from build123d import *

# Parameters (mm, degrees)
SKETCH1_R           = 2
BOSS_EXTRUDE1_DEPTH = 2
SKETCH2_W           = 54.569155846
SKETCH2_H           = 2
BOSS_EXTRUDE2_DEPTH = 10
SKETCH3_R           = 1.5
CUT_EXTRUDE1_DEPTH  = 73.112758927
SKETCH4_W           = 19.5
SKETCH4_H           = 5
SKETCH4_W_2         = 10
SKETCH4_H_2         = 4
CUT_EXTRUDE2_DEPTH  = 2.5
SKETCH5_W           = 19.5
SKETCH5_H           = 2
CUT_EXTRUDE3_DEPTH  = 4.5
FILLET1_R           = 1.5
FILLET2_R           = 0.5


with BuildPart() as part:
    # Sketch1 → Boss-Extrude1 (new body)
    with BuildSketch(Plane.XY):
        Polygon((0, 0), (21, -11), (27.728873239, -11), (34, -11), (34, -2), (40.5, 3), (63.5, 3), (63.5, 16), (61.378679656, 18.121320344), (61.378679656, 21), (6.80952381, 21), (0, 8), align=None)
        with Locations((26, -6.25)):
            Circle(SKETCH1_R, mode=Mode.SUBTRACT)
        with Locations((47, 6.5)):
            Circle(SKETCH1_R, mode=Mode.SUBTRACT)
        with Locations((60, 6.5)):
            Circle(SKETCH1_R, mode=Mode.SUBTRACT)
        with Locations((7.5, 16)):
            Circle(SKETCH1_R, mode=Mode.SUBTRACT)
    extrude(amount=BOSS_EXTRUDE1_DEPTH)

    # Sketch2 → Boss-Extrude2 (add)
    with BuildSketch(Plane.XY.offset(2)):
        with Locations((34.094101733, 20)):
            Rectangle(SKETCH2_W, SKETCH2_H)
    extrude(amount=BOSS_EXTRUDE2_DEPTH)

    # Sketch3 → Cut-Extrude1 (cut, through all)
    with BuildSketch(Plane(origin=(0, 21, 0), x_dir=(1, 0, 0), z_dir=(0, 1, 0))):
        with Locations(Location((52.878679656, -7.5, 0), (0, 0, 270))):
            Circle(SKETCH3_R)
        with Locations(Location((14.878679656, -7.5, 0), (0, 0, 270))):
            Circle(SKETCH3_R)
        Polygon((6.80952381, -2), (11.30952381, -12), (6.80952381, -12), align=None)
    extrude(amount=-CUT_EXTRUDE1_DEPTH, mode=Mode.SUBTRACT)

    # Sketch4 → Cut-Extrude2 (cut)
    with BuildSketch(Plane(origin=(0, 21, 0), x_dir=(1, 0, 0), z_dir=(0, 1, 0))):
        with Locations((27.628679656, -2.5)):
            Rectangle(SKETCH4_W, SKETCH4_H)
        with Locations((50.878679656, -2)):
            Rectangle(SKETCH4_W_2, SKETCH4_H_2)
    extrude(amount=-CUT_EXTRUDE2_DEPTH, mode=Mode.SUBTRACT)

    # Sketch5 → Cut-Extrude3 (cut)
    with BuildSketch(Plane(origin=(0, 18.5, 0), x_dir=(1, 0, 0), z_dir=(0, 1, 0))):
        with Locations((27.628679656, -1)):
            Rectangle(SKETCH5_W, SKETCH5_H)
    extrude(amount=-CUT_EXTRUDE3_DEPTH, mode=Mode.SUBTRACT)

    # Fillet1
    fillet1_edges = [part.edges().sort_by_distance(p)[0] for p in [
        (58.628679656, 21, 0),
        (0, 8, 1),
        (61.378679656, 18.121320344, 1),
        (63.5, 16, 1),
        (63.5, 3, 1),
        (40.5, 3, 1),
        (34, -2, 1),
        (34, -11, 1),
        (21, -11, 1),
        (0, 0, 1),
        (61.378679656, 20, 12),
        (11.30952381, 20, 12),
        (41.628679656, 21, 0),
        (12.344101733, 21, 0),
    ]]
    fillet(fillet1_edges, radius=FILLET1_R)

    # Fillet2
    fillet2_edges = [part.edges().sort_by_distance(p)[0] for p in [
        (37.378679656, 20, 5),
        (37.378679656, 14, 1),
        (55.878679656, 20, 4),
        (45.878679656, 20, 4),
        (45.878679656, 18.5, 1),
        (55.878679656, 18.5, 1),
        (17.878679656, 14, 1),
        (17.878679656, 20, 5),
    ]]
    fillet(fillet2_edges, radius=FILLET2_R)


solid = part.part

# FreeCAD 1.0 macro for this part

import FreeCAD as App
import Part
import Sketcher
Q = App.Units.Quantity


def edges_at(feature, points):
    """Names of the edges that pass closest to the given points."""
    edges = feature.Shape.Edges
    near = lambda p: min(range(len(edges)), key=lambda i: edges[i].distToShape(Part.Vertex(*p))[0])
    return sorted({f"Edge{near(p) + 1}" for p in points})

doc = App.newDocument("Part")
body = doc.addObject("PartDesign::Body", "Body")

# Sketch on XY plane
sketch1 = body.newObject("Sketcher::SketchObject", "Sketch")
sketch1.AttachmentSupport = (doc.getObject("XY_Plane"), [""])
sketch1.MapMode = "FlatFace"
sketch1.addGeometry([
    Part.LineSegment(App.Vector(0, 0, 0), App.Vector(21, -11, 0)),  # 0
    Part.LineSegment(App.Vector(21, -11, 0), App.Vector(34, -11, 0)),  # 1
    Part.LineSegment(App.Vector(34, -11, 0), App.Vector(34, -2, 0)),  # 2
    Part.LineSegment(App.Vector(34, -2, 0), App.Vector(40.5, 3, 0)),  # 3
    Part.LineSegment(App.Vector(40.5, 3, 0), App.Vector(63.5, 3, 0)),  # 4
    Part.LineSegment(App.Vector(63.5, 3, 0), App.Vector(63.5, 16, 0)),  # 5
    Part.LineSegment(App.Vector(63.5, 16, 0), App.Vector(61.37868, 18.12132, 0)),  # 6
    Part.LineSegment(App.Vector(61.37868, 18.12132, 0), App.Vector(61.37868, 21, 0)),  # 7
    Part.LineSegment(App.Vector(61.37868, 21, 0), App.Vector(6.809524, 21, 0)),  # 8
    Part.LineSegment(App.Vector(6.809524, 21, 0), App.Vector(0, 8, 0)),  # 9
    Part.LineSegment(App.Vector(0, 8, 0), App.Vector(0, 0, 0)),  # 10
    Part.Circle(App.Vector(26, -6.25, 0), App.Vector(0, 0, 1), 2),  # 11
    Part.Circle(App.Vector(7.5, 16, 0), App.Vector(0, 0, 1), 2),  # 12
    Part.Circle(App.Vector(47, 6.5, 0), App.Vector(0, 0, 1), 2),  # 13
    Part.Circle(App.Vector(60, 6.5, 0), App.Vector(0, 0, 1), 2),  # 14
], False)
sketch1.addConstraint([
    Sketcher.Constraint("Coincident", 0, 2, 1, 1),
    Sketcher.Constraint("Coincident", 1, 2, 2, 1),
    Sketcher.Constraint("Coincident", 2, 2, 3, 1),
    Sketcher.Constraint("Coincident", 3, 2, 4, 1),
    Sketcher.Constraint("Coincident", 4, 2, 5, 1),
    Sketcher.Constraint("Coincident", 5, 2, 6, 1),
    Sketcher.Constraint("Coincident", 6, 2, 7, 1),
    Sketcher.Constraint("Coincident", 7, 2, 8, 1),
    Sketcher.Constraint("Coincident", 8, 2, 9, 1),
    Sketcher.Constraint("Coincident", 9, 2, 10, 1),
    Sketcher.Constraint("Coincident", 10, 2, 0, 1),
    Sketcher.Constraint("Horizontal", 1),
    Sketcher.Constraint("Vertical", 2),
    Sketcher.Constraint("Horizontal", 4),
    Sketcher.Constraint("Vertical", 5),
    Sketcher.Constraint("Vertical", 7),
    Sketcher.Constraint("Horizontal", 8),
    Sketcher.Constraint("Vertical", 10),
    Sketcher.Constraint("Coincident", 10, 2, -1, 1),
    Sketcher.Constraint("Equal", 11, 12),
    Sketcher.Constraint("Equal", 12, 13),
    Sketcher.Constraint("Equal", 13, 14),
    Sketcher.Constraint("Perpendicular", 0, 9),
    Sketcher.Constraint("Horizontal", 13, 3, 14, 3),
    Sketcher.Constraint("Horizontal", 12, 3, 5, 2),
    Sketcher.Constraint("Equal", 1, 5),
    Sketcher.Constraint("Diameter", 11, Q("4 mm")),
    Sketcher.Constraint("DistanceX", 1, 1, 1, 2, Q("13 mm")),
    Sketcher.Constraint("DistanceX", 4, 1, 4, 2, Q("23 mm")),
    Sketcher.Constraint("DistanceY", 2, 1, 2, 2, Q("9 mm")),
    Sketcher.Constraint("DistanceY", 10, 2, 10, 1, Q("8 mm")),
    Sketcher.Constraint("Angle", 6, Q("135 deg")),
    Sketcher.Constraint("Distance", 6, Q("3 mm")),
    Sketcher.Constraint("DistanceX", -1, 1, 11, 3, Q("26 mm")),
    Sketcher.Constraint("DistanceY", -1, 1, 12, 3, Q("16 mm")),
    Sketcher.Constraint("DistanceX", -1, 1, 13, 3, Q("47 mm")),
    Sketcher.Constraint("DistanceX", -1, 1, 14, 3, Q("60 mm")),
    Sketcher.Constraint("DistanceX", -1, 1, 0, 2, Q("21 mm")),
    Sketcher.Constraint("DistanceY", 0, 2, -1, 1, Q("11 mm")),
    Sketcher.Constraint("DistanceY", -1, 1, 7, 2, Q("21 mm")),
    Sketcher.Constraint("DistanceX", -1, 1, 12, 3, Q("7.5 mm")),
    Sketcher.Constraint("DistanceY", -1, 1, 13, 3, Q("6.5 mm")),
    Sketcher.Constraint("DistanceX", -1, 1, 3, 2, Q("40.5 mm")),
    Sketcher.Constraint("DistanceY", 11, 3, -1, 1, Q("6.25 mm")),
])
pad1 = body.newObject("PartDesign::Pad", "Pad")
pad1.Profile = sketch1
pad1.Length = 2

# Sketch on XY plane
sketch2 = body.newObject("Sketcher::SketchObject", "Sketch001")
sketch2.AttachmentSupport = (doc.getObject("XY_Plane"), [""])
sketch2.MapMode = "FlatFace"
sketch2.AttachmentOffset = App.Placement(App.Vector(0, 0, 2), App.Rotation())
sketch2.addGeometry([
    Part.LineSegment(App.Vector(6.809524, 21, 0), App.Vector(6.809524, 19, 0)),
    Part.LineSegment(App.Vector(6.809524, 19, 0), App.Vector(61.37868, 19, 0)),
    Part.LineSegment(App.Vector(61.37868, 19, 0), App.Vector(61.37868, 21, 0)),
    Part.LineSegment(App.Vector(61.37868, 21, 0), App.Vector(6.809524, 21, 0)),
], False)
sketch2.addConstraint([
    Sketcher.Constraint("Coincident", 0, 2, 1, 1),
    Sketcher.Constraint("Coincident", 1, 2, 2, 1),
    Sketcher.Constraint("Coincident", 2, 2, 3, 1),
    Sketcher.Constraint("Coincident", 3, 2, 0, 1),
    Sketcher.Constraint("Vertical", 0),
    Sketcher.Constraint("Horizontal", 1),
    Sketcher.Constraint("Vertical", 2),
    Sketcher.Constraint("Horizontal", 3),
    Sketcher.Constraint("DistanceY", 0, 2, 0, 1, Q("2 mm")),
    Sketcher.Constraint("DistanceY", -1, 1, 0, 2, Q("19 mm")),
    Sketcher.Constraint("DistanceX", 1, 1, 1, 2, Q("54.569156 mm")),
    Sketcher.Constraint("DistanceX", -1, 1, 1, 2, Q("61.37868 mm")),
])
pad2 = body.newObject("PartDesign::Pad", "Pad001")
pad2.Profile = sketch2
pad2.Length = 10

# Sketch on XZ plane
sketch3 = body.newObject("Sketcher::SketchObject", "Sketch002")
sketch3.AttachmentSupport = (doc.getObject("XZ_Plane"), [""])
sketch3.MapMode = "FlatFace"
sketch3.AttachmentOffset = App.Placement(App.Vector(0, 0, -21), App.Rotation())
sketch3.addGeometry([
    Part.Circle(App.Vector(52.87868, 7.5, 0), App.Vector(0, 0, 1), 1.5),  # 0
    Part.Circle(App.Vector(14.87868, 7.5, 0), App.Vector(0, 0, 1), 1.5),  # 1
    Part.LineSegment(App.Vector(11.309524, 12, 0), App.Vector(6.809524, 2, 0)),  # 2
    Part.LineSegment(App.Vector(6.809524, 2, 0), App.Vector(6.809524, 12, 0)),  # 3
    Part.LineSegment(App.Vector(6.809524, 12, 0), App.Vector(11.309524, 12, 0)),  # 4
], False)
sketch3.addConstraint([
    Sketcher.Constraint("Coincident", 2, 2, 3, 1),
    Sketcher.Constraint("Coincident", 3, 2, 4, 1),
    Sketcher.Constraint("Coincident", 4, 2, 2, 1),
    Sketcher.Constraint("Vertical", 3),
    Sketcher.Constraint("Horizontal", 4),
    Sketcher.Constraint("Equal", 0, 1),
    Sketcher.Constraint("Horizontal", 0, 3, 1, 3),
    Sketcher.Constraint("Diameter", 0, Q("3 mm")),
    Sketcher.Constraint("DistanceY", 3, 1, 3, 2, Q("10 mm")),
    Sketcher.Constraint("DistanceX", 4, 1, 4, 2, Q("4.5 mm")),
    Sketcher.Constraint("DistanceY", -1, 1, 2, 2, Q("2 mm")),
    Sketcher.Constraint("DistanceX", 1, 3, 0, 3, Q("38 mm")),
    Sketcher.Constraint("DistanceY", -1, 1, 0, 3, Q("7.5 mm")),
    Sketcher.Constraint("DistanceX", -1, 1, 0, 3, Q("52.87868 mm")),
    Sketcher.Constraint("DistanceX", -1, 1, 2, 2, Q("6.809524 mm")),
])
pocket1 = body.newObject("PartDesign::Pocket", "Pocket")
pocket1.Profile = sketch3
pocket1.Type = "ThroughAll"
pocket1.Reversed = True

# Sketch on XZ plane
sketch4 = body.newObject("Sketcher::SketchObject", "Sketch003")
sketch4.AttachmentSupport = (doc.getObject("XZ_Plane"), [""])
sketch4.MapMode = "FlatFace"
sketch4.AttachmentOffset = App.Placement(App.Vector(0, 0, -21), App.Rotation())
sketch4.addGeometry([
    Part.LineSegment(App.Vector(17.87868, 0, 0), App.Vector(17.87868, 5, 0)),  # 0
    Part.LineSegment(App.Vector(17.87868, 5, 0), App.Vector(37.37868, 5, 0)),  # 1
    Part.LineSegment(App.Vector(37.37868, 5, 0), App.Vector(37.37868, 0, 0)),  # 2
    Part.LineSegment(App.Vector(37.37868, 0, 0), App.Vector(17.87868, 0, 0)),  # 3
    Part.LineSegment(App.Vector(45.87868, 0, 0), App.Vector(45.87868, 4, 0)),  # 4
    Part.LineSegment(App.Vector(45.87868, 4, 0), App.Vector(55.87868, 4, 0)),  # 5
    Part.LineSegment(App.Vector(55.87868, 4, 0), App.Vector(55.87868, 0, 0)),  # 6
    Part.LineSegment(App.Vector(55.87868, 0, 0), App.Vector(45.87868, 0, 0)),  # 7
], False)
sketch4.addConstraint([
    Sketcher.Constraint("Coincident", 0, 2, 1, 1),
    Sketcher.Constraint("Coincident", 1, 2, 2, 1),
    Sketcher.Constraint("Coincident", 2, 2, 3, 1),
    Sketcher.Constraint("Coincident", 3, 2, 0, 1),
    Sketcher.Constraint("Coincident", 4, 2, 5, 1),
    Sketcher.Constraint("Coincident", 5, 2, 6, 1),
    Sketcher.Constraint("Coincident", 6, 2, 7, 1),
    Sketcher.Constraint("Coincident", 7, 2, 4, 1),
    Sketcher.Constraint("Vertical", 0),
    Sketcher.Constraint("Horizontal", 1),
    Sketcher.Constraint("Vertical", 2),
    Sketcher.Constraint("Horizontal", 3),
    Sketcher.Constraint("Vertical", 4),
    Sketcher.Constraint("Horizontal", 5),
    Sketcher.Constraint("Vertical", 6),
    Sketcher.Constraint("Horizontal", 7),
    Sketcher.Constraint("PointOnObject", 2, 2, -1),
    Sketcher.Constraint("PointOnObject", 6, 2, -1),
    Sketcher.Constraint("DistanceX", 5, 1, 5, 2, Q("10 mm")),
    Sketcher.Constraint("DistanceY", 0, 1, 0, 2, Q("5 mm")),
    Sketcher.Constraint("DistanceY", 4, 1, 4, 2, Q("4 mm")),
    Sketcher.Constraint("DistanceX", 1, 1, 1, 2, Q("19.5 mm")),
    Sketcher.Constraint("DistanceX", 0, 2, 4, 2, Q("28 mm")),
    Sketcher.Constraint("DistanceX", -1, 1, 0, 2, Q("17.87868 mm")),
])
pocket2 = body.newObject("PartDesign::Pocket", "Pocket001")
pocket2.Profile = sketch4
pocket2.Length = 2.5
pocket2.Reversed = True

# Sketch on XZ plane
sketch5 = body.newObject("Sketcher::SketchObject", "Sketch004")
sketch5.AttachmentSupport = (doc.getObject("XZ_Plane"), [""])
sketch5.MapMode = "FlatFace"
sketch5.AttachmentOffset = App.Placement(App.Vector(0, 0, -18.5), App.Rotation())
sketch5.addGeometry([
    Part.LineSegment(App.Vector(17.87868, 0, 0), App.Vector(17.87868, 2, 0)),
    Part.LineSegment(App.Vector(17.87868, 2, 0), App.Vector(37.37868, 2, 0)),
    Part.LineSegment(App.Vector(37.37868, 2, 0), App.Vector(37.37868, 0, 0)),
    Part.LineSegment(App.Vector(37.37868, 0, 0), App.Vector(17.87868, 0, 0)),
], False)
sketch5.addConstraint([
    Sketcher.Constraint("Coincident", 0, 2, 1, 1),
    Sketcher.Constraint("Coincident", 1, 2, 2, 1),
    Sketcher.Constraint("Coincident", 2, 2, 3, 1),
    Sketcher.Constraint("Coincident", 3, 2, 0, 1),
    Sketcher.Constraint("Vertical", 0),
    Sketcher.Constraint("Horizontal", 1),
    Sketcher.Constraint("Vertical", 2),
    Sketcher.Constraint("Horizontal", 3),
    Sketcher.Constraint("PointOnObject", 2, 2, -1),
    Sketcher.Constraint("DistanceY", 0, 1, 0, 2, Q("2 mm")),
    Sketcher.Constraint("DistanceX", 1, 1, 1, 2, Q("19.5 mm")),
    Sketcher.Constraint("DistanceX", -1, 1, 0, 2, Q("17.87868 mm")),
])
pocket3 = body.newObject("PartDesign::Pocket", "Pocket002")
pocket3.Profile = sketch5
pocket3.Length = 4.5
pocket3.Reversed = True
doc.recompute()

fillet = body.newObject("PartDesign::Fillet", "Fillet")
fillet.Base = (pocket3, edges_at(pocket3, [
    (58.629, 21, 0),
    (0, 8, 1),
    (61.379, 18.121, 1),
    (63.5, 16, 1),
    (63.5, 3, 1),
    (40.5, 3, 1),
    (34, -2, 1),
    (34, -11, 1),
    (21, -11, 1),
    (0, 0, 1),
    (61.379, 20, 12),
    (11.31, 20, 12),
    (41.629, 21, 0),
    (12.344, 21, 0),
]))
fillet.Radius = 1.5
doc.recompute()

fillet2 = body.newObject("PartDesign::Fillet", "Fillet001")
fillet2.Base = (fillet, edges_at(fillet, [
    (37.379, 20, 5),
    (37.379, 14, 1),
    (55.879, 20, 4),
    (45.879, 20, 4),
    (45.879, 18.5, 1),
    (55.879, 18.5, 1),
    (17.879, 14, 1),
    (17.879, 20, 5),
]))
fillet2.Radius = 0.5

doc.recompute()
